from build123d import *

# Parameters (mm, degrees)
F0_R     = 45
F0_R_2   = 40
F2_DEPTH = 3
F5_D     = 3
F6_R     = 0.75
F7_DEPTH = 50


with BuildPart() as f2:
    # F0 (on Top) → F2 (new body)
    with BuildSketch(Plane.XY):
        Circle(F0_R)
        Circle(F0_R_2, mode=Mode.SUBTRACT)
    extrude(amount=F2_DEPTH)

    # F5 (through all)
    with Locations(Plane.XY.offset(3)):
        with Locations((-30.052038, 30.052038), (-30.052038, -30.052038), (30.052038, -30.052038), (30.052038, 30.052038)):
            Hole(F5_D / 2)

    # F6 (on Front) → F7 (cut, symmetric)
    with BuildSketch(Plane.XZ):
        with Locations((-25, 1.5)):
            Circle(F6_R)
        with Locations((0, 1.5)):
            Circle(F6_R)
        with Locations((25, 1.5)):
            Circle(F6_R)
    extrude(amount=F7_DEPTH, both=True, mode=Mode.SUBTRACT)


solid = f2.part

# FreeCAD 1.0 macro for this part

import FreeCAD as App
import Part
import Sketcher

V = App.Vector

doc = App.newDocument("Part")
body = doc.addObject("PartDesign::Body", "Body")

# Sketch on XY plane
sketch1 = doc.addObject("Sketcher::SketchObject", "Sketch")
body.addObject(sketch1)
sketch1.AttachmentSupport = (doc.XY_Plane, [""])
sketch1.MapMode = "FlatFace"
sketch1.addGeometry(Part.Circle(V(0, 0, 0), V(0, 0, 1), 45), False)
sketch1.addGeometry(Part.Circle(V(0, 0, 0), V(0, 0, 1), 40), False)
sketch1.addConstraint(Sketcher.Constraint("Coincident", 0, 3, -1, 1))
sketch1.addConstraint(Sketcher.Constraint("Coincident", 1, 3, -1, 1))
sketch1.addConstraint(Sketcher.Constraint("Diameter", 0, 90.0))
sketch1.addConstraint(Sketcher.Constraint("Diameter", 1, 80.0))
pad1 = doc.addObject("PartDesign::Pad", "Pad")
body.addObject(pad1)
pad1.Profile = sketch1
pad1.Length = 3

# Sketch on XY plane
sketch2 = doc.addObject("Sketcher::SketchObject", "Sketch001")
body.addObject(sketch2)
sketch2.AttachmentSupport = (doc.XY_Plane, [""])
sketch2.MapMode = "FlatFace"
sketch2.AttachmentOffset = App.Placement(V(0, 0, 3), App.Rotation())
sketch2.addGeometry(Part.Circle(V(-30.052038, 30.052038, 0), V(0, 0, 1), 1.5), False)
sketch2.addGeometry(Part.Circle(V(-30.052038, -30.052038, 0), V(0, 0, 1), 1.5), False)
sketch2.addGeometry(Part.Circle(V(30.052038, -30.052038, 0), V(0, 0, 1), 1.5), False)
sketch2.addGeometry(Part.Circle(V(30.052038, 30.052038, 0), V(0, 0, 1), 1.5), False)
sketch2.addConstraint(Sketcher.Constraint("Equal", 0, 1))
sketch2.addConstraint(Sketcher.Constraint("Equal", 1, 2))
sketch2.addConstraint(Sketcher.Constraint("Equal", 2, 3))
sketch2.addConstraint(Sketcher.Constraint("Symmetric", 0, 3, 2, 3, -1, 1))
sketch2.addConstraint(Sketcher.Constraint("Symmetric", 1, 3, 3, 3, -1, 1))
sketch2.addConstraint(Sketcher.Constraint("Symmetric", 1, 3, 2, 3, -2))
sketch2.addConstraint(Sketcher.Constraint("Diameter", 0, 3.0))
sketch2.addConstraint(Sketcher.Constraint("DistanceX", 0, 3, -1, 1, 30.052038))
sketch2.addConstraint(Sketcher.Constraint("DistanceY", -1, 1, 0, 3, 30.052038))
doc.recompute()
hole = doc.addObject("PartDesign::Hole", "Hole")
body.addObject(hole)
hole.Profile = sketch2
hole.ThreadType = "None"
hole.Diameter = 3
hole.DepthType = "ThroughAll"

# Sketch on XZ plane
sketch3 = doc.addObject("Sketcher::SketchObject", "Sketch002")
body.addObject(sketch3)
sketch3.AttachmentSupport = (doc.XZ_Plane, [""])
sketch3.MapMode = "FlatFace"
sketch3.addGeometry(Part.Circle(V(-25, 1.5, 0), V(0, 0, 1), 0.75), False)
sketch3.addGeometry(Part.Circle(V(0, 1.5, 0), V(0, 0, 1), 0.75), False)
sketch3.addGeometry(Part.Circle(V(25, 1.5, 0), V(0, 0, 1), 0.75), False)
sketch3.addConstraint(Sketcher.Constraint("Equal", 0, 1))
sketch3.addConstraint(Sketcher.Constraint("Equal", 1, 2))
sketch3.addConstraint(Sketcher.Constraint("Symmetric", 0, 3, 2, 3, -2))
sketch3.addConstraint(Sketcher.Constraint("PointOnObject", 1, 3, -2))
sketch3.addConstraint(Sketcher.Constraint("Horizontal", 0, 3, 1, 3))
sketch3.addConstraint(Sketcher.Constraint("Diameter", 0, 1.5))
sketch3.addConstraint(Sketcher.Constraint("DistanceX", 0, 3, -1, 1, 25.0))
sketch3.addConstraint(Sketcher.Constraint("DistanceY", -1, 1, 0, 3, 1.5))
pocket1 = doc.addObject("PartDesign::Pocket", "Pocket")
body.addObject(pocket1)
pocket1.Profile = sketch3
pocket1.Length = 100
pocket1.Midplane = True

doc.recompute()
